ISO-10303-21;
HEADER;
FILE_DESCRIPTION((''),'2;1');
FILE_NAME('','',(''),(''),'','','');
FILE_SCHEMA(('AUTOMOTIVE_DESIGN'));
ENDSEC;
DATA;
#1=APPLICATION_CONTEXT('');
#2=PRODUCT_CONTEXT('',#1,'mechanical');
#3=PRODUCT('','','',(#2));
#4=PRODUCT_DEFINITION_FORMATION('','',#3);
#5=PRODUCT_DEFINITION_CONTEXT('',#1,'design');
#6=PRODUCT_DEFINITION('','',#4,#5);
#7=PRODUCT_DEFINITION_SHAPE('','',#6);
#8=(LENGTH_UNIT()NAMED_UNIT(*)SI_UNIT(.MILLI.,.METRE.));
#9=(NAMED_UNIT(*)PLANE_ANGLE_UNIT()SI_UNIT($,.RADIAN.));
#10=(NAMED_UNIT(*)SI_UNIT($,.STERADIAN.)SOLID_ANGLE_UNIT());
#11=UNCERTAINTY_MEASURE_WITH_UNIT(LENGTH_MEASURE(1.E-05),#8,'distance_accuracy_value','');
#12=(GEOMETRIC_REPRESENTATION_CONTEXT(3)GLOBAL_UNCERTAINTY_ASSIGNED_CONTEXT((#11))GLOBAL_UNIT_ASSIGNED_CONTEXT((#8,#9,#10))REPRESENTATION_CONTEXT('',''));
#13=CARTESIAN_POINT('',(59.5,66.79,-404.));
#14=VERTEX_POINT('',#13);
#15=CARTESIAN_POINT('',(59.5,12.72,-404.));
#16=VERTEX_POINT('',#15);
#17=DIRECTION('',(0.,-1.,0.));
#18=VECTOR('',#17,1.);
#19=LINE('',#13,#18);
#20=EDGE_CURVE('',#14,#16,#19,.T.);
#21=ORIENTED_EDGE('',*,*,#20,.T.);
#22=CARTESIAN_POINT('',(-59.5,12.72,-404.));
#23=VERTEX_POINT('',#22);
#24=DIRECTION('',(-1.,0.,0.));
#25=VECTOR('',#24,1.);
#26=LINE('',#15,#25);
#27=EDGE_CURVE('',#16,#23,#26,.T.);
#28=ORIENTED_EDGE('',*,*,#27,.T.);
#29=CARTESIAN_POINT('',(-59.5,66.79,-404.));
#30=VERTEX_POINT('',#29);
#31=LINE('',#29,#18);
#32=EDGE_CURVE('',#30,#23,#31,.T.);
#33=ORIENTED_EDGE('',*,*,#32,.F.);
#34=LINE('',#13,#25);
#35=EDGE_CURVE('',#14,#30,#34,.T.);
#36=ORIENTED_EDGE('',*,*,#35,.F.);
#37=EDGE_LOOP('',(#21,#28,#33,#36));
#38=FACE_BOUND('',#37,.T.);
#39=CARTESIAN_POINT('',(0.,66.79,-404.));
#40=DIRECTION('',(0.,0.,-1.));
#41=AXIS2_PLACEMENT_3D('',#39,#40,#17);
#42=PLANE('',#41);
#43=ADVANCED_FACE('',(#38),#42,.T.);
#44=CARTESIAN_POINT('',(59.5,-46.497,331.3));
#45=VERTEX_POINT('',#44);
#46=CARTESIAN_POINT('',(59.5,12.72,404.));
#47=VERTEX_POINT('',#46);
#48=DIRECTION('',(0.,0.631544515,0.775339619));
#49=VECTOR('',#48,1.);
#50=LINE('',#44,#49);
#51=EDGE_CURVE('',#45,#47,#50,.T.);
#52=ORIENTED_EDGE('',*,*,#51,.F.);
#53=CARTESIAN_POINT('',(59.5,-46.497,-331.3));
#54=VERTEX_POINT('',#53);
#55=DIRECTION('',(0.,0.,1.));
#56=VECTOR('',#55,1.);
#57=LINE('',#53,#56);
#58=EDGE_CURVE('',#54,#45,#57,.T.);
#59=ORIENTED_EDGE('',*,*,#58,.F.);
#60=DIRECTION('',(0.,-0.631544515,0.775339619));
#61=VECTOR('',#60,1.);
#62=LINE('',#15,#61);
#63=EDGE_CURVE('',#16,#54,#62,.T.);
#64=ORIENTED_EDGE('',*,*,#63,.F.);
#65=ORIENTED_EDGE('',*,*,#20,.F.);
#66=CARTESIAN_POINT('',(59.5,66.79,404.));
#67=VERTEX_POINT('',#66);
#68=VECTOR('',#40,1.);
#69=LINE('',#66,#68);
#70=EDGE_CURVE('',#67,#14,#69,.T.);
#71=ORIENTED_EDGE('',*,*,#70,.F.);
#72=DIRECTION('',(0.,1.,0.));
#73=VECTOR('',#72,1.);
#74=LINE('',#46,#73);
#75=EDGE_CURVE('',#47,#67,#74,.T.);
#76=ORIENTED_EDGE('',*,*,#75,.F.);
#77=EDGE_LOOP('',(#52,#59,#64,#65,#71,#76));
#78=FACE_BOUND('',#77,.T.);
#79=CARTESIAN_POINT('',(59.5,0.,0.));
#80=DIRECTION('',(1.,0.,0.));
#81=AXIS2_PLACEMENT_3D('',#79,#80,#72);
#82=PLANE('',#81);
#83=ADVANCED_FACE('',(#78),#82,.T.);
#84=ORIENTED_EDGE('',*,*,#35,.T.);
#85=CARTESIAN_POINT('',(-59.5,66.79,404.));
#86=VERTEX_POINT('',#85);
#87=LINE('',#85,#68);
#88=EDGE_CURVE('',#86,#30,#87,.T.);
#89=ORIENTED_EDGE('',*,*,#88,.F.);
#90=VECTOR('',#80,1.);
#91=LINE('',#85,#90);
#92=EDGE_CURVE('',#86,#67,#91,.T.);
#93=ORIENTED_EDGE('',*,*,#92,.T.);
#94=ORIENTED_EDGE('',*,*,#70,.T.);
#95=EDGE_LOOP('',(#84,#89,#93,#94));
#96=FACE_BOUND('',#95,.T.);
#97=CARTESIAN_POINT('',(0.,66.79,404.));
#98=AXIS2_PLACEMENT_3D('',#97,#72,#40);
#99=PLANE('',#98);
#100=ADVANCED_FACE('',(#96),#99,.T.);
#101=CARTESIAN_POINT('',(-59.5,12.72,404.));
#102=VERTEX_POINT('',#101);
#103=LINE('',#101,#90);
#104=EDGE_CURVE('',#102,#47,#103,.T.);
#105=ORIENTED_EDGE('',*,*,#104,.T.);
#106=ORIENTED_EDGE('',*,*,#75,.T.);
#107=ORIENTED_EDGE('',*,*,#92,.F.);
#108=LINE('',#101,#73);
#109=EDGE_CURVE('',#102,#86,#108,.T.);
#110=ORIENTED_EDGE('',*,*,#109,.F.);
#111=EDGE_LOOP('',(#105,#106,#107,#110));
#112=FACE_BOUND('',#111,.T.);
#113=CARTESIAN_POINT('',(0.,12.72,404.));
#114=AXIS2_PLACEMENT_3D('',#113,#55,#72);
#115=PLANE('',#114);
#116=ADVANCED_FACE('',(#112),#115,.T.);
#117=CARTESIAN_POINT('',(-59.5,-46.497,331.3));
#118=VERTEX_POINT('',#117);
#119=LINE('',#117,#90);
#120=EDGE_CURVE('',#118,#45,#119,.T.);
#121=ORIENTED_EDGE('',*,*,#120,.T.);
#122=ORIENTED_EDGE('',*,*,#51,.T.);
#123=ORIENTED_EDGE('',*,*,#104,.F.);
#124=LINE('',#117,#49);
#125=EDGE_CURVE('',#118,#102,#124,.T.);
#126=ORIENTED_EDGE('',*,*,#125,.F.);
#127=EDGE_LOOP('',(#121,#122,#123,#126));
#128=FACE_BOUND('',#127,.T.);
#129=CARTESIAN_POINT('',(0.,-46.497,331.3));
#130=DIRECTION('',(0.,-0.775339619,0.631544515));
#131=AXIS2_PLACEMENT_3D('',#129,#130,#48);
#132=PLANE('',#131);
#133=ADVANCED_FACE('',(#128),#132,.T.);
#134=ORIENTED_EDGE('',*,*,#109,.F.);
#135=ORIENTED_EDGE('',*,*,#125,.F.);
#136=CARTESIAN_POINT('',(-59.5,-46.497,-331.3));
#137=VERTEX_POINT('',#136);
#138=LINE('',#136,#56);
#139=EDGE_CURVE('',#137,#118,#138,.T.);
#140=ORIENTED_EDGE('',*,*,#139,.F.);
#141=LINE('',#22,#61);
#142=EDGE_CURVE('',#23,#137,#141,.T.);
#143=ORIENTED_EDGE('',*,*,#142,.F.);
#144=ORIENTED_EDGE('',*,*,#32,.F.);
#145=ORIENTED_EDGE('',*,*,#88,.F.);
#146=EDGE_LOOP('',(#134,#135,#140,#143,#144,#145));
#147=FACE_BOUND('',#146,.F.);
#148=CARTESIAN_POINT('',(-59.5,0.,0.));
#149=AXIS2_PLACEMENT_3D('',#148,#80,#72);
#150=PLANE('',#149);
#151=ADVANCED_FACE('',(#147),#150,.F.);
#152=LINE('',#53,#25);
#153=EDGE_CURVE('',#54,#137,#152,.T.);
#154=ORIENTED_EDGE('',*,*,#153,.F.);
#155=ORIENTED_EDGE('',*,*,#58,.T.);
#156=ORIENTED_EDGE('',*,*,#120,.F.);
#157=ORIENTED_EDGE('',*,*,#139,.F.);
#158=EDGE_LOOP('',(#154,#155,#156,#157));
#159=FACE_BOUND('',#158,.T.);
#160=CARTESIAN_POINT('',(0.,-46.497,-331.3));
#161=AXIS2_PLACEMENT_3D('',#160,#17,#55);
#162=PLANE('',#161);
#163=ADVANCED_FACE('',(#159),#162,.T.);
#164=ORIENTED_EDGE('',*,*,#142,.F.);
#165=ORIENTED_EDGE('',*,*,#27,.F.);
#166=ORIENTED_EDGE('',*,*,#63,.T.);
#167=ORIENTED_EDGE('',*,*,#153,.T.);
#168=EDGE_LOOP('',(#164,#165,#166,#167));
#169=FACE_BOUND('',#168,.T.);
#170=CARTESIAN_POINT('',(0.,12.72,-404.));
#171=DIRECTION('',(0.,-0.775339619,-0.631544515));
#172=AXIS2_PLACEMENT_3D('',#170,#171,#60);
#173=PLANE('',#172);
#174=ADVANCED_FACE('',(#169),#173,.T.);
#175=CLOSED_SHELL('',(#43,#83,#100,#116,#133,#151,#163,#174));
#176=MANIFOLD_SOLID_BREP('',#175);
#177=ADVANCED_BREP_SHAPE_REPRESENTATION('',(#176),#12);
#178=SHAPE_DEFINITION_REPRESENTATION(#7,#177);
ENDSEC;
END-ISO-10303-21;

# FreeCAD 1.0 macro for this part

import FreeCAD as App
import Part
import Sketcher

V = App.Vector


def add_polygon(sketch, points):
    """Adds a closed chain of lines whose ends are joined by coincident constraints."""
    first, n = sketch.GeometryCount, len(points)
    for a, b in zip(points, points[1:] + points[:1]):
        sketch.addGeometry(Part.LineSegment(App.Vector(*a, 0), App.Vector(*b, 0)), False)
    for i in range(n):
        sketch.addConstraint(Sketcher.Constraint("Coincident", first + i, 2, first + (i + 1) % n, 1))

doc = App.newDocument("Part")
body = doc.addObject("PartDesign::Body", "Body")

sketch1 = doc.addObject("Sketcher::SketchObject", "Sketch")
body.addObject(sketch1)
sketch1.AttachmentSupport = (doc.YZ_Plane, [""])
sketch1.MapMode = "FlatFace"
add_polygon(sketch1, [(67, -404), (67, 404), (13, 404), (-46, 331), (-46, -331), (13, -404)])
sketch1.addConstraint([
    Sketcher.Constraint("Vertical", 0),
    Sketcher.Constraint("Horizontal", 1),
    Sketcher.Constraint("Vertical", 3),
    Sketcher.Constraint("Horizontal", 5),
    Sketcher.Constraint("Symmetric", 1, 2, 4, 2, -1),
    Sketcher.Constraint("Equal", 2, 4),
    Sketcher.Constraint("DistanceY", -1, 1, 0, 2, 404.0),
    Sketcher.Constraint("DistanceY", -1, 1, 2, 2, 331.3),
    Sketcher.Constraint("DistanceX", -1, 1, 0, 2, 66.79),
    Sketcher.Constraint("DistanceX", -1, 1, 1, 2, 12.72),
    Sketcher.Constraint("DistanceX", 2, 2, -1, 1, 46.497),
])
pad1 = doc.addObject("PartDesign::Pad", "Pad")
body.addObject(pad1)
pad1.Profile = sketch1
pad1.Length = 119
pad1.Midplane = True

doc.recompute()
